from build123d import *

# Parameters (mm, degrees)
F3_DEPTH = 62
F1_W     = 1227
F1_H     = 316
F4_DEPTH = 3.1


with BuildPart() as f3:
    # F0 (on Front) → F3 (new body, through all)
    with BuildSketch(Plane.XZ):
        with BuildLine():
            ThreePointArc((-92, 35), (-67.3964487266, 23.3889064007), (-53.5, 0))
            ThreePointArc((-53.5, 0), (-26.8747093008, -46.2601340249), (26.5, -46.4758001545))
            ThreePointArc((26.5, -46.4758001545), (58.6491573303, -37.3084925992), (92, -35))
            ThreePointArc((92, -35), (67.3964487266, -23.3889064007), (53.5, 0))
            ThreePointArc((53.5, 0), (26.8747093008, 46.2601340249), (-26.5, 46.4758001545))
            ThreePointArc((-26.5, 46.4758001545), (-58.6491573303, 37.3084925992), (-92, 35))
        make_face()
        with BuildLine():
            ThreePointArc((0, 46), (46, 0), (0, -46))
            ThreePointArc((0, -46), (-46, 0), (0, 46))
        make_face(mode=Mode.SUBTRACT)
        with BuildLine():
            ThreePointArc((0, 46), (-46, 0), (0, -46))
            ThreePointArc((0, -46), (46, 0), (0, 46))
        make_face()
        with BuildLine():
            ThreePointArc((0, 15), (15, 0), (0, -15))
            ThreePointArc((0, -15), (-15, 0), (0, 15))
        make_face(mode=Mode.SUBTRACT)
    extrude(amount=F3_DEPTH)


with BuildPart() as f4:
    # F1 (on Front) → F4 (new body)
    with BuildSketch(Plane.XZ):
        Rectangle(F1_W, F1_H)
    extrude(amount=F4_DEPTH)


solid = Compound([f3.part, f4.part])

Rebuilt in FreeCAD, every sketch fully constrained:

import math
import FreeCAD as App
import Part
import Sketcher

doc = App.newDocument("Part")
params = doc.addObject("Spreadsheet::Sheet", "Params")
for row, (alias, value) in enumerate([
    ("sketch1_diameter", "30 mm"),
    ("sketch1_radius", "46.5 mm"),
    ("sketch1_radius2", "53.5 mm"),
    ("sketch1_radius3", "160.5 mm"),
    ("pad1_length", "62 mm"),
    ("sketch2_width", "1227 mm"),
    ("sketch2_height", "316 mm"),
    ("pad2_length", "3.1 mm"),
], start=1):
    params.set(f"A{row}", alias)
    params.set(f"B{row}", "=" + value)
    params.setAlias(f"B{row}", alias)

body = doc.addObject("PartDesign::Body", "Body")

sketch1 = body.newObject("Sketcher::SketchObject", "Sketch")
sketch1.AttachmentSupport = (doc.getObject("XZ_Plane"), [""])
sketch1.MapMode = "FlatFace"
sketch1.addGeometry(Part.ArcOfCircle(Part.Circle(App.Vector(-99, -11, 0), App.Vector(0, 0, 1), 46), math.radians(14), math.radians(82)), False)
sketch1.addGeometry(Part.ArcOfCircle(Part.Circle(App.Vector(0, 0, 0), App.Vector(0, 0, 1), 54), math.radians(180), math.radians(300)), False)
sketch1.addGeometry(Part.ArcOfCircle(Part.Circle(App.Vector(86, -195, 0), App.Vector(0, 0, 1), 161), math.radians(88), math.radians(112)), False)
sketch1.addGeometry(Part.ArcOfCircle(Part.Circle(App.Vector(99, 11, 0), App.Vector(0, 0, 1), 46), math.radians(-166), math.radians(-98)), False)
sketch1.addGeometry(Part.ArcOfCircle(Part.Circle(App.Vector(0, 0, 0), App.Vector(0, 0, 1), 54), math.radians(0), math.radians(120)), False)
sketch1.addGeometry(Part.ArcOfCircle(Part.Circle(App.Vector(-86, 195, 0), App.Vector(0, 0, 1), 161), math.radians(-92), math.radians(-68)), False)
sketch1.addGeometry(Part.Circle(App.Vector(0, 0, 0), App.Vector(0, 0, 1), 15), False)
sketch1.addConstraint(Sketcher.Constraint("Coincident", 0, 1, 1, 1))
sketch1.addConstraint(Sketcher.Constraint("Coincident", 1, 2, 2, 2))
sketch1.addConstraint(Sketcher.Constraint("Coincident", 2, 1, 3, 2))
sketch1.addConstraint(Sketcher.Constraint("Coincident", 3, 1, 4, 1))
sketch1.addConstraint(Sketcher.Constraint("Coincident", 4, 2, 5, 2))
sketch1.addConstraint(Sketcher.Constraint("Coincident", 5, 1, 0, 2))
sketch1.addConstraint(Sketcher.Constraint("Coincident", 1, 3, -1, 1))
sketch1.addConstraint(Sketcher.Constraint("Coincident", 4, 3, -1, 1))
sketch1.addConstraint(Sketcher.Constraint("Coincident", 6, 3, -1, 1))
sketch1.addConstraint(Sketcher.Constraint("Equal", 0, 3))
sketch1.addConstraint(Sketcher.Constraint("Equal", 1, 4))
sketch1.addConstraint(Sketcher.Constraint("Equal", 2, 5))
sketch1.addConstraint(Sketcher.Constraint("Symmetric", 0, 3, 3, 3, -1, 1))
sketch1.addConstraint(Sketcher.Constraint("Symmetric", 2, 3, 5, 3, -1, 1))
sketch1.addConstraint(Sketcher.Constraint("PointOnObject", 0, 1, -1))
sketch1.addConstraint(Sketcher.Constraint("Diameter", 6, 30.0))
sketch1.addConstraint(Sketcher.Constraint("Radius", 0, 46.5))
sketch1.addConstraint(Sketcher.Constraint("Radius", 1, 53.5))
sketch1.addConstraint(Sketcher.Constraint("Radius", 2, 160.5))
sketch1.addConstraint(Sketcher.Constraint("DistanceX", -1, 1, 2, 1, 92.0))
sketch1.addConstraint(Sketcher.Constraint("DistanceY", 2, 1, -1, 1, 35.0))
sketch1.addConstraint(Sketcher.Constraint("DistanceX", 0, 1, 1, 2, 80.0))
sketch1.setExpression("Constraints[15]", "Params.sketch1_diameter")
sketch1.setExpression("Constraints[16]", "Params.sketch1_radius")
sketch1.setExpression("Constraints[17]", "Params.sketch1_radius2")
sketch1.setExpression("Constraints[18]", "Params.sketch1_radius3")
pad1 = body.newObject("PartDesign::Pad", "Pad")
pad1.Profile = sketch1
pad1.setExpression("Length", "Params.pad1_length")
body2 = doc.addObject("PartDesign::Body", "Body001")

sketch2 = body2.newObject("Sketcher::SketchObject", "Sketch001")
sketch2.AttachmentSupport = (doc.getObject("XZ_Plane001"), [""])
sketch2.MapMode = "FlatFace"
sketch2.addGeometry(Part.LineSegment(App.Vector(-614, 158, 0), App.Vector(-614, -158, 0)), False)
sketch2.addGeometry(Part.LineSegment(App.Vector(-614, -158, 0), App.Vector(614, -158, 0)), False)
sketch2.addGeometry(Part.LineSegment(App.Vector(614, -158, 0), App.Vector(614, 158, 0)), False)
sketch2.addGeometry(Part.LineSegment(App.Vector(614, 158, 0), App.Vector(-614, 158, 0)), False)
sketch2.addConstraint(Sketcher.Constraint("Coincident", 0, 2, 1, 1))
sketch2.addConstraint(Sketcher.Constraint("Coincident", 1, 2, 2, 1))
sketch2.addConstraint(Sketcher.Constraint("Coincident", 2, 2, 3, 1))
sketch2.addConstraint(Sketcher.Constraint("Coincident", 3, 2, 0, 1))
sketch2.addConstraint(Sketcher.Constraint("Vertical", 0))
sketch2.addConstraint(Sketcher.Constraint("Horizontal", 1))
sketch2.addConstraint(Sketcher.Constraint("Vertical", 2))
sketch2.addConstraint(Sketcher.Constraint("Horizontal", 3))
sketch2.addConstraint(Sketcher.Constraint("Symmetric", 0, 2, 2, 2, -1, 1))
sketch2.addConstraint(Sketcher.Constraint("DistanceX", 1, 1, 1, 2, 1227.0))
sketch2.addConstraint(Sketcher.Constraint("DistanceY", 0, 2, 0, 1, 316.0))
sketch2.setExpression("Constraints[9]", "Params.sketch2_width")
sketch2.setExpression("Constraints[10]", "Params.sketch2_height")
pad2 = body2.newObject("PartDesign::Pad", "Pad001")
pad2.Profile = sketch2
pad2.setExpression("Length", "Params.pad2_length")

doc.recompute()
